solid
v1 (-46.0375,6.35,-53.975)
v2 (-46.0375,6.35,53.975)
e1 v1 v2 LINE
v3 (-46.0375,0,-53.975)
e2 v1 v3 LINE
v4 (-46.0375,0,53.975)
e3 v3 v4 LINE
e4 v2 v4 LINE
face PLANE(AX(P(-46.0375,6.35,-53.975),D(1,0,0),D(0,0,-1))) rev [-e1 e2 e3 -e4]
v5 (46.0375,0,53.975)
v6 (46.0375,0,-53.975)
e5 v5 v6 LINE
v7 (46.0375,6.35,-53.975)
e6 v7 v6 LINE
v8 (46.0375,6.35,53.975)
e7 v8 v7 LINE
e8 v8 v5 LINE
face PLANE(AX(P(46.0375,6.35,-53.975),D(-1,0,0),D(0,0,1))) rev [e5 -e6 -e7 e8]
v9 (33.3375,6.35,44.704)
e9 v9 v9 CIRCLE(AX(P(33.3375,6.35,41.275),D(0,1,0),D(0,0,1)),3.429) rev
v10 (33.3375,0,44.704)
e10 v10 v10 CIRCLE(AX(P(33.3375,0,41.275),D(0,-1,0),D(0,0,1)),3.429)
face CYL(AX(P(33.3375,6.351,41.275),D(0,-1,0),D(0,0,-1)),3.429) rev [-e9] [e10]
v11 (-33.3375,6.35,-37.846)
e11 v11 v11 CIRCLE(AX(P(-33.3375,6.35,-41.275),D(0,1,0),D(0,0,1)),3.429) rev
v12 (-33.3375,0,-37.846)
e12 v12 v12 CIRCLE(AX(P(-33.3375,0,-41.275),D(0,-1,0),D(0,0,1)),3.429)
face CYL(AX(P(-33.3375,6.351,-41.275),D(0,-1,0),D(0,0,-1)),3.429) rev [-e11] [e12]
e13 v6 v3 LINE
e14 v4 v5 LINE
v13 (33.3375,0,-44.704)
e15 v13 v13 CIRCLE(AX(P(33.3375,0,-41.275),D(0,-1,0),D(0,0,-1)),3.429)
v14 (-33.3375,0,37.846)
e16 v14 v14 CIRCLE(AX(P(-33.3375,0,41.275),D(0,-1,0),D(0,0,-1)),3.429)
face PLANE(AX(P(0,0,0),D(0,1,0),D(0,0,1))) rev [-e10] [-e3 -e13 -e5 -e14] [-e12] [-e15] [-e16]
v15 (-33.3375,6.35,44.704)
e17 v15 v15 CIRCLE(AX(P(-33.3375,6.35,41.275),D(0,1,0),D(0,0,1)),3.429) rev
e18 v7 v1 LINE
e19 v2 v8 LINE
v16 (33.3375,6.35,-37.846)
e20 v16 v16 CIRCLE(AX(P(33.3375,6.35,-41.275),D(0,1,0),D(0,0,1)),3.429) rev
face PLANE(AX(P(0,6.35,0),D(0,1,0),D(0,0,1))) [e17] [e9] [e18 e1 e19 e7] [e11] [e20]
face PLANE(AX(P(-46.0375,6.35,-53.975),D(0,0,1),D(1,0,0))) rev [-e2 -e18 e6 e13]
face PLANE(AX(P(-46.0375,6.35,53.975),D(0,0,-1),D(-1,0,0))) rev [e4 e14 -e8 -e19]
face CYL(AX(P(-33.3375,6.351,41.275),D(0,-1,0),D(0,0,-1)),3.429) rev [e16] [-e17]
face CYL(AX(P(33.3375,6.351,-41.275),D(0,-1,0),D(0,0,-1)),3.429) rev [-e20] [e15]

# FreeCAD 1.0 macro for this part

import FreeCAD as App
import Part
import Sketcher
Q = App.Units.Quantity

doc = App.newDocument("Part")
body = doc.addObject("PartDesign::Body", "Body")

sketch1 = body.newObject("Sketcher::SketchObject", "Sketch")
sketch1.AttachmentSupport = (doc.getObject("XZ_Plane"), [""])
sketch1.MapMode = "FlatFace"
sketch1.addGeometry(Part.LineSegment(App.Vector(-46, -54, 0), App.Vector(-46, 54, 0)), False)
sketch1.addGeometry(Part.LineSegment(App.Vector(-46, 54, 0), App.Vector(46, 54, 0)), False)
sketch1.addGeometry(Part.LineSegment(App.Vector(46, 54, 0), App.Vector(46, -54, 0)), False)
sketch1.addGeometry(Part.LineSegment(App.Vector(46, -54, 0), App.Vector(-46, -54, 0)), False)
sketch1.addConstraint(Sketcher.Constraint("Coincident", 0, 2, 1, 1))
sketch1.addConstraint(Sketcher.Constraint("Coincident", 1, 2, 2, 1))
sketch1.addConstraint(Sketcher.Constraint("Coincident", 2, 2, 3, 1))
sketch1.addConstraint(Sketcher.Constraint("Coincident", 3, 2, 0, 1))
sketch1.addConstraint(Sketcher.Constraint("Vertical", 0))
sketch1.addConstraint(Sketcher.Constraint("Horizontal", 1))
sketch1.addConstraint(Sketcher.Constraint("Vertical", 2))
sketch1.addConstraint(Sketcher.Constraint("Horizontal", 3))
sketch1.addConstraint(Sketcher.Constraint("Symmetric", 0, 2, 2, 2, -1, 1))
sketch1.addConstraint(Sketcher.Constraint("DistanceY", 0, 1, 0, 2, Q("4.25 in")))
sketch1.addConstraint(Sketcher.Constraint("DistanceX", 1, 1, 1, 2, Q("3.625 in")))
pad1 = body.newObject("PartDesign::Pad", "Pad")
pad1.Profile = sketch1
pad1.Length = Q("0.25 in")
pad1.Reversed = True

sketch2 = body.newObject("Sketcher::SketchObject", "Sketch001")
sketch2.AttachmentSupport = (doc.getObject("XZ_Plane"), [""])
sketch2.MapMode = "FlatFace"
sketch2.addGeometry(Part.Circle(App.Vector(-33.3, 41.3, 0), App.Vector(0, 0, 1), 3.4), False)
sketch2.addConstraint(Sketcher.Constraint("Diameter", 0, Q("0.27 in")))
sketch2.addConstraint(Sketcher.Constraint("DistanceX", 0, 3, -1, 1, Q("1.3125 in")))
sketch2.addConstraint(Sketcher.Constraint("DistanceY", -1, 1, 0, 3, Q("1.625 in")))
pocket1 = body.newObject("PartDesign::Pocket", "Pocket")
pocket1.Profile = sketch2
pocket1.Type = "UpToFirst"

sketch3 = body.newObject("Sketcher::SketchObject", "Sketch002")
sketch3.AttachmentSupport = (doc.getObject("XZ_Plane"), [""])
sketch3.MapMode = "FlatFace"
sketch3.addGeometry(Part.Circle(App.Vector(-33.3, -41.3, 0), App.Vector(0, 0, 1), 3.4), False)
sketch3.addConstraint(Sketcher.Constraint("Diameter", 0, Q("0.27 in")))
sketch3.addConstraint(Sketcher.Constraint("DistanceX", 0, 3, -1, 1, Q("1.3125 in")))
sketch3.addConstraint(Sketcher.Constraint("DistanceY", 0, 3, -1, 1, Q("1.625 in")))
pocket2 = body.newObject("PartDesign::Pocket", "Pocket001")
pocket2.Profile = sketch3
pocket2.Type = "UpToFirst"

sketch4 = body.newObject("Sketcher::SketchObject", "Sketch003")
sketch4.AttachmentSupport = (doc.getObject("XZ_Plane"), [""])
sketch4.MapMode = "FlatFace"
sketch4.addGeometry(Part.Circle(App.Vector(33.3, 41.3, 0), App.Vector(0, 0, 1), 3.4), False)
sketch4.addConstraint(Sketcher.Constraint("Diameter", 0, Q("0.27 in")))
sketch4.addConstraint(Sketcher.Constraint("DistanceX", -1, 1, 0, 3, Q("1.3125 in")))
sketch4.addConstraint(Sketcher.Constraint("DistanceY", -1, 1, 0, 3, Q("1.625 in")))
pocket3 = body.newObject("PartDesign::Pocket", "Pocket002")
pocket3.Profile = sketch4
pocket3.Type = "UpToFirst"

sketch5 = body.newObject("Sketcher::SketchObject", "Sketch004")
sketch5.AttachmentSupport = (doc.getObject("XZ_Plane"), [""])
sketch5.MapMode = "FlatFace"
sketch5.addGeometry(Part.Circle(App.Vector(33.3, -41.3, 0), App.Vector(0, 0, 1), 3.4), False)
sketch5.addConstraint(Sketcher.Constraint("Diameter", 0, Q("0.27 in")))
sketch5.addConstraint(Sketcher.Constraint("DistanceX", -1, 1, 0, 3, Q("1.3125 in")))
sketch5.addConstraint(Sketcher.Constraint("DistanceY", 0, 3, -1, 1, Q("1.625 in")))
pocket4 = body.newObject("PartDesign::Pocket", "Pocket003")
pocket4.Profile = sketch5
pocket4.Type = "UpToFirst"

doc.recompute()
